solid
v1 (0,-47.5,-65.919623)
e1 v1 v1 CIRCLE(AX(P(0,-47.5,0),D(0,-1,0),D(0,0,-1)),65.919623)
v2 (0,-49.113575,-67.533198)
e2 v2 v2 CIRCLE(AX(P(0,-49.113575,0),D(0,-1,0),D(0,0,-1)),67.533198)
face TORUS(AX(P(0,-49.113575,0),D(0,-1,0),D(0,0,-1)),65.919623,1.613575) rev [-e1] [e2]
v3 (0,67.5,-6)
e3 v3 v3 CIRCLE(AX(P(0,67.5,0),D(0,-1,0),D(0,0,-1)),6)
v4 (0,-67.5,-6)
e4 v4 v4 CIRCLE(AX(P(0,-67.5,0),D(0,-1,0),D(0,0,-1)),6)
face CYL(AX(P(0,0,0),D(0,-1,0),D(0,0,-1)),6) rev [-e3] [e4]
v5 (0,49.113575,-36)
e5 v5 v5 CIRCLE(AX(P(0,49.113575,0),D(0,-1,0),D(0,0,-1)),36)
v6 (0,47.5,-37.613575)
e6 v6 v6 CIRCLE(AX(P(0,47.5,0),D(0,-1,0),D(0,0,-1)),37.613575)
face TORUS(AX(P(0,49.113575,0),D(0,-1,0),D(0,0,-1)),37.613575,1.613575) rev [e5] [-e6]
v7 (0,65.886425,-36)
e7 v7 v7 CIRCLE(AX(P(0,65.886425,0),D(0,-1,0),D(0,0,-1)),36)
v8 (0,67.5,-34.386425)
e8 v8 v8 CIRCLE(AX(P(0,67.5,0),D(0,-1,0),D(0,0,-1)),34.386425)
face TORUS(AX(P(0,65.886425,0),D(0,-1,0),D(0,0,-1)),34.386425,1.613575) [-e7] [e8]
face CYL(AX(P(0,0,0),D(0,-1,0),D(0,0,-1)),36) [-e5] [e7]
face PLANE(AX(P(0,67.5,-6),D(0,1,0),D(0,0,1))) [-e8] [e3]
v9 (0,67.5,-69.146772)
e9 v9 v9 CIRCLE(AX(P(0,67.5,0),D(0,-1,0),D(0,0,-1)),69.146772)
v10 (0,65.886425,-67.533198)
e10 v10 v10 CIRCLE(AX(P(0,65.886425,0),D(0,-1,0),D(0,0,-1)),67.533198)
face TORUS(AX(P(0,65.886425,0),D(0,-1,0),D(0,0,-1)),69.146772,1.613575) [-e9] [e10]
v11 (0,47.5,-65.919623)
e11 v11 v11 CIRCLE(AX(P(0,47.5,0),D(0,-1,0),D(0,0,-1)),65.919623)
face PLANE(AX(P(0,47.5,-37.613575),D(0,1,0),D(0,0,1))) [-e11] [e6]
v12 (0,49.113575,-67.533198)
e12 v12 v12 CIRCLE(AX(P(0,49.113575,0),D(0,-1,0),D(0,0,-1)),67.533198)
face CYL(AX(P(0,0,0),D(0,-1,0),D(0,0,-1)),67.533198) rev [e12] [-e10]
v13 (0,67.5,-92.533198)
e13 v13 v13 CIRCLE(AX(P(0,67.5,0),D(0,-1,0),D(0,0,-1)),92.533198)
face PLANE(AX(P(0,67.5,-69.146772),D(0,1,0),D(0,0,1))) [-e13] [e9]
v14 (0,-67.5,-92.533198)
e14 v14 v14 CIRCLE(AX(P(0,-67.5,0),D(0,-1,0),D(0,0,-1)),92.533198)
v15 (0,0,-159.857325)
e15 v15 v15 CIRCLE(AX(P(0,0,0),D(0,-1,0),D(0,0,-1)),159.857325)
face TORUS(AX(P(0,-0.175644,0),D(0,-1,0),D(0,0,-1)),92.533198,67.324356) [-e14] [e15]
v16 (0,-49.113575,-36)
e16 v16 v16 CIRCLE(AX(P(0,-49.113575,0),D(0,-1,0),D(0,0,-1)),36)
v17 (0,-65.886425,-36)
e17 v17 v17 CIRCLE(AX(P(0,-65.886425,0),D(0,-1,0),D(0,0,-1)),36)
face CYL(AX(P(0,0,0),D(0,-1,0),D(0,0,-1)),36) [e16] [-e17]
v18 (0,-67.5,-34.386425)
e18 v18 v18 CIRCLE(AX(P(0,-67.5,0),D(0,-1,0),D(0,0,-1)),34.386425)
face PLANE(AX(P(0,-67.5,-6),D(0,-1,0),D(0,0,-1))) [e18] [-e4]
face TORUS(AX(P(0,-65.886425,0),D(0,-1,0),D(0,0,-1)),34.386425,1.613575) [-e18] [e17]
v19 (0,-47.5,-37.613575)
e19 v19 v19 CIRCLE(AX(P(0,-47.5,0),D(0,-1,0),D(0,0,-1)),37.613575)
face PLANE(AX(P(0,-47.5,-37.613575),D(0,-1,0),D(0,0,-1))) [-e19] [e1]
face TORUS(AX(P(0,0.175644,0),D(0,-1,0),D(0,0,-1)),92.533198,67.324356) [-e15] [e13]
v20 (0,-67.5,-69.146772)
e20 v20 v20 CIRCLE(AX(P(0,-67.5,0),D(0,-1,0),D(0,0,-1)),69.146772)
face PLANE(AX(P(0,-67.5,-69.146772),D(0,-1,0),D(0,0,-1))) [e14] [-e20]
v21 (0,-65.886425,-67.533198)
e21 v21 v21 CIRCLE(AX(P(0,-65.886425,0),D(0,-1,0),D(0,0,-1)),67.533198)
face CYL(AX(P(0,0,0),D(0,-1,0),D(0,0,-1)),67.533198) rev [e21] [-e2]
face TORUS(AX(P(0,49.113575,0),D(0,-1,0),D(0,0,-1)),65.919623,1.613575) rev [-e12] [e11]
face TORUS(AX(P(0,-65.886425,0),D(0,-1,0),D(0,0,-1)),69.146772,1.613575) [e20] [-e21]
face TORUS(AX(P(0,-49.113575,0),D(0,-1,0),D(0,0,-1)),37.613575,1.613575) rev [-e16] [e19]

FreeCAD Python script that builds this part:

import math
import FreeCAD as App
import Part
import Sketcher

V = App.Vector
Q = App.Units.Quantity

doc = App.newDocument("Part")
body = doc.addObject("PartDesign::Body", "Body")

# Sketch on YZ plane
sketch1 = doc.addObject("Sketcher::SketchObject", "Sketch")
body.addObject(sketch1)
sketch1.AttachmentSupport = (doc.YZ_Plane, [""])
sketch1.MapMode = "FlatFace"
sketch1.addGeometry(Part.LineSegment(V(67.5, -6, 0), V(-67.5, -6, 0)), False)
sketch1.addGeometry(Part.LineSegment(V(-67.5, -6, 0), V(-67.5, -34.386425, 0)), False)
sketch1.addGeometry(Part.ArcOfCircle(Part.Circle(V(-65.886425, -34.386425, 0), V(0, 0, 1), 1.613575), math.radians(-180), math.radians(-90)), False)
sketch1.addGeometry(Part.LineSegment(V(-65.886425, -36, 0), V(-49.113575, -36, 0)), False)
sketch1.addGeometry(Part.ArcOfCircle(Part.Circle(V(-49.113575, -37.613575, 0), V(0, 0, 1), 1.613575), math.radians(0), math.radians(90)), False)
sketch1.addGeometry(Part.LineSegment(V(-47.5, -37.613575, 0), V(-47.5, -65.919623, 0)), False)
sketch1.addGeometry(Part.ArcOfCircle(Part.Circle(V(-49.113575, -65.919623, 0), V(0, 0, 1), 1.613575), math.radians(-90), math.radians(0)), False)
sketch1.addGeometry(Part.LineSegment(V(-49.113575, -67.533198, 0), V(-65.886425, -67.533198, 0)), False)
sketch1.addGeometry(Part.ArcOfCircle(Part.Circle(V(-65.886425, -69.146772, 0), V(0, 0, 1), 1.613575), math.radians(90), math.radians(180)), False)
sketch1.addGeometry(Part.LineSegment(V(-67.5, -69.146772, 0), V(-67.5, -92.533198, 0)), False)
sketch1.addGeometry(Part.ArcOfCircle(Part.Circle(V(-0.175644, -92.533198, 0), V(0, 0, 1), 67.324356), math.radians(180), math.radians(270.14948)), False)
sketch1.addGeometry(Part.ArcOfCircle(Part.Circle(V(0.175644, -92.533198, 0), V(0, 0, 1), 67.324356), math.radians(-90.14948), math.radians(0)), False)
sketch1.addGeometry(Part.LineSegment(V(67.5, -92.533198, 0), V(67.5, -69.146772, 0)), False)
sketch1.addGeometry(Part.ArcOfCircle(Part.Circle(V(65.886425, -69.146772, 0), V(0, 0, 1), 1.613575), math.radians(0), math.radians(90)), False)
sketch1.addGeometry(Part.LineSegment(V(65.886425, -67.533198, 0), V(49.113575, -67.533198, 0)), False)
sketch1.addGeometry(Part.ArcOfCircle(Part.Circle(V(49.113575, -65.919623, 0), V(0, 0, 1), 1.613575), math.radians(180), math.radians(270)), False)
sketch1.addGeometry(Part.LineSegment(V(47.5, -65.919623, 0), V(47.5, -37.613575, 0)), False)
sketch1.addGeometry(Part.ArcOfCircle(Part.Circle(V(49.113575, -37.613575, 0), V(0, 0, 1), 1.613575), math.radians(90), math.radians(180)), False)
sketch1.addGeometry(Part.LineSegment(V(49.113575, -36, 0), V(65.886425, -36, 0)), False)
sketch1.addGeometry(Part.ArcOfCircle(Part.Circle(V(65.886425, -34.386425, 0), V(0, 0, 1), 1.613575), math.radians(-90), math.radians(0)), False)
sketch1.addGeometry(Part.LineSegment(V(67.5, -34.386425, 0), V(67.5, -6, 0)), False)
sketch1.addConstraint(Sketcher.Constraint("Coincident", 0, 2, 1, 1))
sketch1.addConstraint(Sketcher.Constraint("Tangent", 1, 2, 2, 1))
sketch1.addConstraint(Sketcher.Constraint("Tangent", 2, 2, 3, 1))
sketch1.addConstraint(Sketcher.Constraint("Tangent", 3, 2, 4, 2))
sketch1.addConstraint(Sketcher.Constraint("Tangent", 4, 1, 5, 1))
sketch1.addConstraint(Sketcher.Constraint("Tangent", 5, 2, 6, 2))
sketch1.addConstraint(Sketcher.Constraint("Tangent", 6, 1, 7, 1))
sketch1.addConstraint(Sketcher.Constraint("Tangent", 7, 2, 8, 1))
sketch1.addConstraint(Sketcher.Constraint("Tangent", 8, 2, 9, 1))
sketch1.addConstraint(Sketcher.Constraint("Tangent", 9, 2, 10, 1))
sketch1.addConstraint(Sketcher.Constraint("Coincident", 10, 2, 11, 1))
sketch1.addConstraint(Sketcher.Constraint("Tangent", 11, 2, 12, 1))
sketch1.addConstraint(Sketcher.Constraint("Tangent", 12, 2, 13, 1))
sketch1.addConstraint(Sketcher.Constraint("Tangent", 13, 2, 14, 1))
sketch1.addConstraint(Sketcher.Constraint("Tangent", 14, 2, 15, 2))
sketch1.addConstraint(Sketcher.Constraint("Tangent", 15, 1, 16, 1))
sketch1.addConstraint(Sketcher.Constraint("Tangent", 16, 2, 17, 2))
sketch1.addConstraint(Sketcher.Constraint("Tangent", 17, 1, 18, 1))
sketch1.addConstraint(Sketcher.Constraint("Tangent", 18, 2, 19, 1))
sketch1.addConstraint(Sketcher.Constraint("Tangent", 19, 2, 20, 1))
sketch1.addConstraint(Sketcher.Constraint("Coincident", 20, 2, 0, 1))
sketch1.addConstraint(Sketcher.Constraint("Horizontal", 0))
sketch1.addConstraint(Sketcher.Constraint("Vertical", 1))
sketch1.addConstraint(Sketcher.Constraint("Horizontal", 3))
sketch1.addConstraint(Sketcher.Constraint("Vertical", 5))
sketch1.addConstraint(Sketcher.Constraint("Horizontal", 7))
sketch1.addConstraint(Sketcher.Constraint("Vertical", 9))
sketch1.addConstraint(Sketcher.Constraint("Vertical", 12))
sketch1.addConstraint(Sketcher.Constraint("Horizontal", 14))
sketch1.addConstraint(Sketcher.Constraint("Vertical", 16))
sketch1.addConstraint(Sketcher.Constraint("Horizontal", 18))
sketch1.addConstraint(Sketcher.Constraint("Vertical", 20))
sketch1.addConstraint(Sketcher.Constraint("Equal", 2, 4))
sketch1.addConstraint(Sketcher.Constraint("Equal", 4, 6))
sketch1.addConstraint(Sketcher.Constraint("Equal", 6, 8))
sketch1.addConstraint(Sketcher.Constraint("Equal", 10, 11))
sketch1.addConstraint(Sketcher.Constraint("Equal", 8, 13))
sketch1.addConstraint(Sketcher.Constraint("Equal", 13, 15))
sketch1.addConstraint(Sketcher.Constraint("Equal", 15, 17))
sketch1.addConstraint(Sketcher.Constraint("Equal", 17, 19))
sketch1.addConstraint(Sketcher.Constraint("Symmetric", 10, 3, 11, 3, -2))
sketch1.addConstraint(Sketcher.Constraint("Symmetric", 6, 3, 15, 3, -2))
sketch1.addConstraint(Sketcher.Constraint("Symmetric", 2, 3, 19, 3, -2))
sketch1.addConstraint(Sketcher.Constraint("Vertical", 2, 3, 8, 3))
sketch1.addConstraint(Sketcher.Constraint("DistanceX", 0, 2, 0, 1, Q("135 mm")))
sketch1.addConstraint(Sketcher.Constraint("DistanceY", 0, 2, -1, 1, Q("6 mm")))
sketch1.addConstraint(Sketcher.Constraint("DistanceY", 2, 2, -1, 1, Q("36 mm")))
sketch1.addConstraint(Sketcher.Constraint("DistanceX", 6, 3, 13, 3, Q("115 mm")))
sketch1.addConstraint(Sketcher.Constraint("DistanceY", 9, 2, 7, 2, Q("25 mm")))
sketch1.addConstraint(Sketcher.Constraint("Radius", 2, Q("1.613575 mm")))
sketch1.addConstraint(Sketcher.Constraint("Radius", 10, Q("67.324356 mm")))
sketch1.addConstraint(Sketcher.Constraint("DistanceY", 5, 2, 5, 1, Q("28.306048 mm")))
revolution = doc.addObject("PartDesign::Revolution", "Revolution")
body.addObject(revolution)
revolution.Profile = sketch1
revolution.ReferenceAxis = (sketch1, ["H_Axis"])
revolution.Angle = 360

doc.recompute()
